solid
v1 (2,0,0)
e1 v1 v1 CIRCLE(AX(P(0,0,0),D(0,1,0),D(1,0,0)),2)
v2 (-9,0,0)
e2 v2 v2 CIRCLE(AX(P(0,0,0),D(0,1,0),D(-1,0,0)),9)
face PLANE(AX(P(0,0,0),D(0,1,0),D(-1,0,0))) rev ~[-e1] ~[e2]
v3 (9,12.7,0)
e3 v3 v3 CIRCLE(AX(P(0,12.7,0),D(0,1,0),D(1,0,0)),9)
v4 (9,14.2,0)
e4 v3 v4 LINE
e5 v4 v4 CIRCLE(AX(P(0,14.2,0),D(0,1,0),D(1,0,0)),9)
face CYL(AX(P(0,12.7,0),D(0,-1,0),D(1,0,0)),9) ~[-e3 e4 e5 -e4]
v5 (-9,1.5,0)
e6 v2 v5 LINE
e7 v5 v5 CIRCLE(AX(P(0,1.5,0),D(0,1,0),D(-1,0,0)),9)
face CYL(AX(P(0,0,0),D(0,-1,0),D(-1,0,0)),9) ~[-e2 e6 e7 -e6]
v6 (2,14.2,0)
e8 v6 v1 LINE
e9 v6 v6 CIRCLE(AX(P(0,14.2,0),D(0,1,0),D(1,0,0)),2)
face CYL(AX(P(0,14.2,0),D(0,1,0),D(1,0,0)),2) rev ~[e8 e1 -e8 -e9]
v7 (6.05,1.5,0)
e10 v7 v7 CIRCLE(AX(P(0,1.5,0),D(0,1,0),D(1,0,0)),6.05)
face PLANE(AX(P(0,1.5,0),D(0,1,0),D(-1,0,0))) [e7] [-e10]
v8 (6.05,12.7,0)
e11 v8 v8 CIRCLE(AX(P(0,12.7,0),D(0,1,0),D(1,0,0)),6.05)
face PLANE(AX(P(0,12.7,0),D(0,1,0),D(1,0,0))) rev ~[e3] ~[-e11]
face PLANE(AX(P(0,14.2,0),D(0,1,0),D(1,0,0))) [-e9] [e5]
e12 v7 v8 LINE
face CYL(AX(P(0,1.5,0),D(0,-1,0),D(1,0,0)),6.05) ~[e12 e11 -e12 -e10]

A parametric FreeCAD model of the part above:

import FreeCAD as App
import Part
import Sketcher

V = App.Vector
Q = App.Units.Quantity

doc = App.newDocument("Part")
body = doc.addObject("PartDesign::Body", "Body")

# Sketch on XZ plane
sketch1 = doc.addObject("Sketcher::SketchObject", "Sketch")
body.addObject(sketch1)
sketch1.AttachmentSupport = (doc.XZ_Plane, [""])
sketch1.MapMode = "FlatFace"
sketch1.addGeometry(Part.Circle(V(0, 0, 0), V(0, 0, 1), 9), False)
sketch1.addConstraint([
    Sketcher.Constraint("Coincident", 0, 3, -1, 1),
    Sketcher.Constraint("Diameter", 0, Q("18 mm")),
])
pad1 = doc.addObject("PartDesign::Pad", "Pad")
body.addObject(pad1)
pad1.Profile = sketch1
pad1.Length = 1.5
pad1.Reversed = True

# Sketch on XZ plane
sketch2 = doc.addObject("Sketcher::SketchObject", "Sketch001")
body.addObject(sketch2)
sketch2.AttachmentSupport = (doc.XZ_Plane, [""])
sketch2.MapMode = "FlatFace"
sketch2.AttachmentOffset = App.Placement(V(0, 0, -1.5), App.Rotation())
sketch2.addGeometry(Part.Circle(V(0, 0, 0), V(0, 0, 1), 6), False)
sketch2.addConstraint([
    Sketcher.Constraint("Coincident", 0, 3, -1, 1),
    Sketcher.Constraint("Diameter", 0, Q("12.1 mm")),
])
pad2 = doc.addObject("PartDesign::Pad", "Pad001")
body.addObject(pad2)
pad2.Profile = sketch2
pad2.Length = 11.2
pad2.Reversed = True

# Sketch on XZ plane
sketch3 = doc.addObject("Sketcher::SketchObject", "Sketch002")
body.addObject(sketch3)
sketch3.AttachmentSupport = (doc.XZ_Plane, [""])
sketch3.MapMode = "FlatFace"
sketch3.AttachmentOffset = App.Placement(V(0, 0, -12.7), App.Rotation())
sketch3.addGeometry(Part.Circle(V(0, 0, 0), V(0, 0, 1), 9), False)
sketch3.addConstraint([
    Sketcher.Constraint("Coincident", 0, 3, -1, 1),
    Sketcher.Constraint("Diameter", 0, Q("18 mm")),
])
pad3 = doc.addObject("PartDesign::Pad", "Pad002")
body.addObject(pad3)
pad3.Profile = sketch3
pad3.Length = 1.5
pad3.Reversed = True

# Sketch on XZ plane
sketch4 = doc.addObject("Sketcher::SketchObject", "Sketch003")
body.addObject(sketch4)
sketch4.AttachmentSupport = (doc.XZ_Plane, [""])
sketch4.MapMode = "FlatFace"
sketch4.AttachmentOffset = App.Placement(V(0, 0, -14.2), App.Rotation())
sketch4.addGeometry(Part.Circle(V(0, 0, 0), V(0, 0, 1), 2), False)
sketch4.addConstraint([
    Sketcher.Constraint("Coincident", 0, 3, -1, 1),
    Sketcher.Constraint("Diameter", 0, Q("4 mm")),
])
pocket1 = doc.addObject("PartDesign::Pocket", "Pocket")
body.addObject(pocket1)
pocket1.Profile = sketch4
pocket1.Type = "ThroughAll"
pocket1.Reversed = True

doc.recompute()
